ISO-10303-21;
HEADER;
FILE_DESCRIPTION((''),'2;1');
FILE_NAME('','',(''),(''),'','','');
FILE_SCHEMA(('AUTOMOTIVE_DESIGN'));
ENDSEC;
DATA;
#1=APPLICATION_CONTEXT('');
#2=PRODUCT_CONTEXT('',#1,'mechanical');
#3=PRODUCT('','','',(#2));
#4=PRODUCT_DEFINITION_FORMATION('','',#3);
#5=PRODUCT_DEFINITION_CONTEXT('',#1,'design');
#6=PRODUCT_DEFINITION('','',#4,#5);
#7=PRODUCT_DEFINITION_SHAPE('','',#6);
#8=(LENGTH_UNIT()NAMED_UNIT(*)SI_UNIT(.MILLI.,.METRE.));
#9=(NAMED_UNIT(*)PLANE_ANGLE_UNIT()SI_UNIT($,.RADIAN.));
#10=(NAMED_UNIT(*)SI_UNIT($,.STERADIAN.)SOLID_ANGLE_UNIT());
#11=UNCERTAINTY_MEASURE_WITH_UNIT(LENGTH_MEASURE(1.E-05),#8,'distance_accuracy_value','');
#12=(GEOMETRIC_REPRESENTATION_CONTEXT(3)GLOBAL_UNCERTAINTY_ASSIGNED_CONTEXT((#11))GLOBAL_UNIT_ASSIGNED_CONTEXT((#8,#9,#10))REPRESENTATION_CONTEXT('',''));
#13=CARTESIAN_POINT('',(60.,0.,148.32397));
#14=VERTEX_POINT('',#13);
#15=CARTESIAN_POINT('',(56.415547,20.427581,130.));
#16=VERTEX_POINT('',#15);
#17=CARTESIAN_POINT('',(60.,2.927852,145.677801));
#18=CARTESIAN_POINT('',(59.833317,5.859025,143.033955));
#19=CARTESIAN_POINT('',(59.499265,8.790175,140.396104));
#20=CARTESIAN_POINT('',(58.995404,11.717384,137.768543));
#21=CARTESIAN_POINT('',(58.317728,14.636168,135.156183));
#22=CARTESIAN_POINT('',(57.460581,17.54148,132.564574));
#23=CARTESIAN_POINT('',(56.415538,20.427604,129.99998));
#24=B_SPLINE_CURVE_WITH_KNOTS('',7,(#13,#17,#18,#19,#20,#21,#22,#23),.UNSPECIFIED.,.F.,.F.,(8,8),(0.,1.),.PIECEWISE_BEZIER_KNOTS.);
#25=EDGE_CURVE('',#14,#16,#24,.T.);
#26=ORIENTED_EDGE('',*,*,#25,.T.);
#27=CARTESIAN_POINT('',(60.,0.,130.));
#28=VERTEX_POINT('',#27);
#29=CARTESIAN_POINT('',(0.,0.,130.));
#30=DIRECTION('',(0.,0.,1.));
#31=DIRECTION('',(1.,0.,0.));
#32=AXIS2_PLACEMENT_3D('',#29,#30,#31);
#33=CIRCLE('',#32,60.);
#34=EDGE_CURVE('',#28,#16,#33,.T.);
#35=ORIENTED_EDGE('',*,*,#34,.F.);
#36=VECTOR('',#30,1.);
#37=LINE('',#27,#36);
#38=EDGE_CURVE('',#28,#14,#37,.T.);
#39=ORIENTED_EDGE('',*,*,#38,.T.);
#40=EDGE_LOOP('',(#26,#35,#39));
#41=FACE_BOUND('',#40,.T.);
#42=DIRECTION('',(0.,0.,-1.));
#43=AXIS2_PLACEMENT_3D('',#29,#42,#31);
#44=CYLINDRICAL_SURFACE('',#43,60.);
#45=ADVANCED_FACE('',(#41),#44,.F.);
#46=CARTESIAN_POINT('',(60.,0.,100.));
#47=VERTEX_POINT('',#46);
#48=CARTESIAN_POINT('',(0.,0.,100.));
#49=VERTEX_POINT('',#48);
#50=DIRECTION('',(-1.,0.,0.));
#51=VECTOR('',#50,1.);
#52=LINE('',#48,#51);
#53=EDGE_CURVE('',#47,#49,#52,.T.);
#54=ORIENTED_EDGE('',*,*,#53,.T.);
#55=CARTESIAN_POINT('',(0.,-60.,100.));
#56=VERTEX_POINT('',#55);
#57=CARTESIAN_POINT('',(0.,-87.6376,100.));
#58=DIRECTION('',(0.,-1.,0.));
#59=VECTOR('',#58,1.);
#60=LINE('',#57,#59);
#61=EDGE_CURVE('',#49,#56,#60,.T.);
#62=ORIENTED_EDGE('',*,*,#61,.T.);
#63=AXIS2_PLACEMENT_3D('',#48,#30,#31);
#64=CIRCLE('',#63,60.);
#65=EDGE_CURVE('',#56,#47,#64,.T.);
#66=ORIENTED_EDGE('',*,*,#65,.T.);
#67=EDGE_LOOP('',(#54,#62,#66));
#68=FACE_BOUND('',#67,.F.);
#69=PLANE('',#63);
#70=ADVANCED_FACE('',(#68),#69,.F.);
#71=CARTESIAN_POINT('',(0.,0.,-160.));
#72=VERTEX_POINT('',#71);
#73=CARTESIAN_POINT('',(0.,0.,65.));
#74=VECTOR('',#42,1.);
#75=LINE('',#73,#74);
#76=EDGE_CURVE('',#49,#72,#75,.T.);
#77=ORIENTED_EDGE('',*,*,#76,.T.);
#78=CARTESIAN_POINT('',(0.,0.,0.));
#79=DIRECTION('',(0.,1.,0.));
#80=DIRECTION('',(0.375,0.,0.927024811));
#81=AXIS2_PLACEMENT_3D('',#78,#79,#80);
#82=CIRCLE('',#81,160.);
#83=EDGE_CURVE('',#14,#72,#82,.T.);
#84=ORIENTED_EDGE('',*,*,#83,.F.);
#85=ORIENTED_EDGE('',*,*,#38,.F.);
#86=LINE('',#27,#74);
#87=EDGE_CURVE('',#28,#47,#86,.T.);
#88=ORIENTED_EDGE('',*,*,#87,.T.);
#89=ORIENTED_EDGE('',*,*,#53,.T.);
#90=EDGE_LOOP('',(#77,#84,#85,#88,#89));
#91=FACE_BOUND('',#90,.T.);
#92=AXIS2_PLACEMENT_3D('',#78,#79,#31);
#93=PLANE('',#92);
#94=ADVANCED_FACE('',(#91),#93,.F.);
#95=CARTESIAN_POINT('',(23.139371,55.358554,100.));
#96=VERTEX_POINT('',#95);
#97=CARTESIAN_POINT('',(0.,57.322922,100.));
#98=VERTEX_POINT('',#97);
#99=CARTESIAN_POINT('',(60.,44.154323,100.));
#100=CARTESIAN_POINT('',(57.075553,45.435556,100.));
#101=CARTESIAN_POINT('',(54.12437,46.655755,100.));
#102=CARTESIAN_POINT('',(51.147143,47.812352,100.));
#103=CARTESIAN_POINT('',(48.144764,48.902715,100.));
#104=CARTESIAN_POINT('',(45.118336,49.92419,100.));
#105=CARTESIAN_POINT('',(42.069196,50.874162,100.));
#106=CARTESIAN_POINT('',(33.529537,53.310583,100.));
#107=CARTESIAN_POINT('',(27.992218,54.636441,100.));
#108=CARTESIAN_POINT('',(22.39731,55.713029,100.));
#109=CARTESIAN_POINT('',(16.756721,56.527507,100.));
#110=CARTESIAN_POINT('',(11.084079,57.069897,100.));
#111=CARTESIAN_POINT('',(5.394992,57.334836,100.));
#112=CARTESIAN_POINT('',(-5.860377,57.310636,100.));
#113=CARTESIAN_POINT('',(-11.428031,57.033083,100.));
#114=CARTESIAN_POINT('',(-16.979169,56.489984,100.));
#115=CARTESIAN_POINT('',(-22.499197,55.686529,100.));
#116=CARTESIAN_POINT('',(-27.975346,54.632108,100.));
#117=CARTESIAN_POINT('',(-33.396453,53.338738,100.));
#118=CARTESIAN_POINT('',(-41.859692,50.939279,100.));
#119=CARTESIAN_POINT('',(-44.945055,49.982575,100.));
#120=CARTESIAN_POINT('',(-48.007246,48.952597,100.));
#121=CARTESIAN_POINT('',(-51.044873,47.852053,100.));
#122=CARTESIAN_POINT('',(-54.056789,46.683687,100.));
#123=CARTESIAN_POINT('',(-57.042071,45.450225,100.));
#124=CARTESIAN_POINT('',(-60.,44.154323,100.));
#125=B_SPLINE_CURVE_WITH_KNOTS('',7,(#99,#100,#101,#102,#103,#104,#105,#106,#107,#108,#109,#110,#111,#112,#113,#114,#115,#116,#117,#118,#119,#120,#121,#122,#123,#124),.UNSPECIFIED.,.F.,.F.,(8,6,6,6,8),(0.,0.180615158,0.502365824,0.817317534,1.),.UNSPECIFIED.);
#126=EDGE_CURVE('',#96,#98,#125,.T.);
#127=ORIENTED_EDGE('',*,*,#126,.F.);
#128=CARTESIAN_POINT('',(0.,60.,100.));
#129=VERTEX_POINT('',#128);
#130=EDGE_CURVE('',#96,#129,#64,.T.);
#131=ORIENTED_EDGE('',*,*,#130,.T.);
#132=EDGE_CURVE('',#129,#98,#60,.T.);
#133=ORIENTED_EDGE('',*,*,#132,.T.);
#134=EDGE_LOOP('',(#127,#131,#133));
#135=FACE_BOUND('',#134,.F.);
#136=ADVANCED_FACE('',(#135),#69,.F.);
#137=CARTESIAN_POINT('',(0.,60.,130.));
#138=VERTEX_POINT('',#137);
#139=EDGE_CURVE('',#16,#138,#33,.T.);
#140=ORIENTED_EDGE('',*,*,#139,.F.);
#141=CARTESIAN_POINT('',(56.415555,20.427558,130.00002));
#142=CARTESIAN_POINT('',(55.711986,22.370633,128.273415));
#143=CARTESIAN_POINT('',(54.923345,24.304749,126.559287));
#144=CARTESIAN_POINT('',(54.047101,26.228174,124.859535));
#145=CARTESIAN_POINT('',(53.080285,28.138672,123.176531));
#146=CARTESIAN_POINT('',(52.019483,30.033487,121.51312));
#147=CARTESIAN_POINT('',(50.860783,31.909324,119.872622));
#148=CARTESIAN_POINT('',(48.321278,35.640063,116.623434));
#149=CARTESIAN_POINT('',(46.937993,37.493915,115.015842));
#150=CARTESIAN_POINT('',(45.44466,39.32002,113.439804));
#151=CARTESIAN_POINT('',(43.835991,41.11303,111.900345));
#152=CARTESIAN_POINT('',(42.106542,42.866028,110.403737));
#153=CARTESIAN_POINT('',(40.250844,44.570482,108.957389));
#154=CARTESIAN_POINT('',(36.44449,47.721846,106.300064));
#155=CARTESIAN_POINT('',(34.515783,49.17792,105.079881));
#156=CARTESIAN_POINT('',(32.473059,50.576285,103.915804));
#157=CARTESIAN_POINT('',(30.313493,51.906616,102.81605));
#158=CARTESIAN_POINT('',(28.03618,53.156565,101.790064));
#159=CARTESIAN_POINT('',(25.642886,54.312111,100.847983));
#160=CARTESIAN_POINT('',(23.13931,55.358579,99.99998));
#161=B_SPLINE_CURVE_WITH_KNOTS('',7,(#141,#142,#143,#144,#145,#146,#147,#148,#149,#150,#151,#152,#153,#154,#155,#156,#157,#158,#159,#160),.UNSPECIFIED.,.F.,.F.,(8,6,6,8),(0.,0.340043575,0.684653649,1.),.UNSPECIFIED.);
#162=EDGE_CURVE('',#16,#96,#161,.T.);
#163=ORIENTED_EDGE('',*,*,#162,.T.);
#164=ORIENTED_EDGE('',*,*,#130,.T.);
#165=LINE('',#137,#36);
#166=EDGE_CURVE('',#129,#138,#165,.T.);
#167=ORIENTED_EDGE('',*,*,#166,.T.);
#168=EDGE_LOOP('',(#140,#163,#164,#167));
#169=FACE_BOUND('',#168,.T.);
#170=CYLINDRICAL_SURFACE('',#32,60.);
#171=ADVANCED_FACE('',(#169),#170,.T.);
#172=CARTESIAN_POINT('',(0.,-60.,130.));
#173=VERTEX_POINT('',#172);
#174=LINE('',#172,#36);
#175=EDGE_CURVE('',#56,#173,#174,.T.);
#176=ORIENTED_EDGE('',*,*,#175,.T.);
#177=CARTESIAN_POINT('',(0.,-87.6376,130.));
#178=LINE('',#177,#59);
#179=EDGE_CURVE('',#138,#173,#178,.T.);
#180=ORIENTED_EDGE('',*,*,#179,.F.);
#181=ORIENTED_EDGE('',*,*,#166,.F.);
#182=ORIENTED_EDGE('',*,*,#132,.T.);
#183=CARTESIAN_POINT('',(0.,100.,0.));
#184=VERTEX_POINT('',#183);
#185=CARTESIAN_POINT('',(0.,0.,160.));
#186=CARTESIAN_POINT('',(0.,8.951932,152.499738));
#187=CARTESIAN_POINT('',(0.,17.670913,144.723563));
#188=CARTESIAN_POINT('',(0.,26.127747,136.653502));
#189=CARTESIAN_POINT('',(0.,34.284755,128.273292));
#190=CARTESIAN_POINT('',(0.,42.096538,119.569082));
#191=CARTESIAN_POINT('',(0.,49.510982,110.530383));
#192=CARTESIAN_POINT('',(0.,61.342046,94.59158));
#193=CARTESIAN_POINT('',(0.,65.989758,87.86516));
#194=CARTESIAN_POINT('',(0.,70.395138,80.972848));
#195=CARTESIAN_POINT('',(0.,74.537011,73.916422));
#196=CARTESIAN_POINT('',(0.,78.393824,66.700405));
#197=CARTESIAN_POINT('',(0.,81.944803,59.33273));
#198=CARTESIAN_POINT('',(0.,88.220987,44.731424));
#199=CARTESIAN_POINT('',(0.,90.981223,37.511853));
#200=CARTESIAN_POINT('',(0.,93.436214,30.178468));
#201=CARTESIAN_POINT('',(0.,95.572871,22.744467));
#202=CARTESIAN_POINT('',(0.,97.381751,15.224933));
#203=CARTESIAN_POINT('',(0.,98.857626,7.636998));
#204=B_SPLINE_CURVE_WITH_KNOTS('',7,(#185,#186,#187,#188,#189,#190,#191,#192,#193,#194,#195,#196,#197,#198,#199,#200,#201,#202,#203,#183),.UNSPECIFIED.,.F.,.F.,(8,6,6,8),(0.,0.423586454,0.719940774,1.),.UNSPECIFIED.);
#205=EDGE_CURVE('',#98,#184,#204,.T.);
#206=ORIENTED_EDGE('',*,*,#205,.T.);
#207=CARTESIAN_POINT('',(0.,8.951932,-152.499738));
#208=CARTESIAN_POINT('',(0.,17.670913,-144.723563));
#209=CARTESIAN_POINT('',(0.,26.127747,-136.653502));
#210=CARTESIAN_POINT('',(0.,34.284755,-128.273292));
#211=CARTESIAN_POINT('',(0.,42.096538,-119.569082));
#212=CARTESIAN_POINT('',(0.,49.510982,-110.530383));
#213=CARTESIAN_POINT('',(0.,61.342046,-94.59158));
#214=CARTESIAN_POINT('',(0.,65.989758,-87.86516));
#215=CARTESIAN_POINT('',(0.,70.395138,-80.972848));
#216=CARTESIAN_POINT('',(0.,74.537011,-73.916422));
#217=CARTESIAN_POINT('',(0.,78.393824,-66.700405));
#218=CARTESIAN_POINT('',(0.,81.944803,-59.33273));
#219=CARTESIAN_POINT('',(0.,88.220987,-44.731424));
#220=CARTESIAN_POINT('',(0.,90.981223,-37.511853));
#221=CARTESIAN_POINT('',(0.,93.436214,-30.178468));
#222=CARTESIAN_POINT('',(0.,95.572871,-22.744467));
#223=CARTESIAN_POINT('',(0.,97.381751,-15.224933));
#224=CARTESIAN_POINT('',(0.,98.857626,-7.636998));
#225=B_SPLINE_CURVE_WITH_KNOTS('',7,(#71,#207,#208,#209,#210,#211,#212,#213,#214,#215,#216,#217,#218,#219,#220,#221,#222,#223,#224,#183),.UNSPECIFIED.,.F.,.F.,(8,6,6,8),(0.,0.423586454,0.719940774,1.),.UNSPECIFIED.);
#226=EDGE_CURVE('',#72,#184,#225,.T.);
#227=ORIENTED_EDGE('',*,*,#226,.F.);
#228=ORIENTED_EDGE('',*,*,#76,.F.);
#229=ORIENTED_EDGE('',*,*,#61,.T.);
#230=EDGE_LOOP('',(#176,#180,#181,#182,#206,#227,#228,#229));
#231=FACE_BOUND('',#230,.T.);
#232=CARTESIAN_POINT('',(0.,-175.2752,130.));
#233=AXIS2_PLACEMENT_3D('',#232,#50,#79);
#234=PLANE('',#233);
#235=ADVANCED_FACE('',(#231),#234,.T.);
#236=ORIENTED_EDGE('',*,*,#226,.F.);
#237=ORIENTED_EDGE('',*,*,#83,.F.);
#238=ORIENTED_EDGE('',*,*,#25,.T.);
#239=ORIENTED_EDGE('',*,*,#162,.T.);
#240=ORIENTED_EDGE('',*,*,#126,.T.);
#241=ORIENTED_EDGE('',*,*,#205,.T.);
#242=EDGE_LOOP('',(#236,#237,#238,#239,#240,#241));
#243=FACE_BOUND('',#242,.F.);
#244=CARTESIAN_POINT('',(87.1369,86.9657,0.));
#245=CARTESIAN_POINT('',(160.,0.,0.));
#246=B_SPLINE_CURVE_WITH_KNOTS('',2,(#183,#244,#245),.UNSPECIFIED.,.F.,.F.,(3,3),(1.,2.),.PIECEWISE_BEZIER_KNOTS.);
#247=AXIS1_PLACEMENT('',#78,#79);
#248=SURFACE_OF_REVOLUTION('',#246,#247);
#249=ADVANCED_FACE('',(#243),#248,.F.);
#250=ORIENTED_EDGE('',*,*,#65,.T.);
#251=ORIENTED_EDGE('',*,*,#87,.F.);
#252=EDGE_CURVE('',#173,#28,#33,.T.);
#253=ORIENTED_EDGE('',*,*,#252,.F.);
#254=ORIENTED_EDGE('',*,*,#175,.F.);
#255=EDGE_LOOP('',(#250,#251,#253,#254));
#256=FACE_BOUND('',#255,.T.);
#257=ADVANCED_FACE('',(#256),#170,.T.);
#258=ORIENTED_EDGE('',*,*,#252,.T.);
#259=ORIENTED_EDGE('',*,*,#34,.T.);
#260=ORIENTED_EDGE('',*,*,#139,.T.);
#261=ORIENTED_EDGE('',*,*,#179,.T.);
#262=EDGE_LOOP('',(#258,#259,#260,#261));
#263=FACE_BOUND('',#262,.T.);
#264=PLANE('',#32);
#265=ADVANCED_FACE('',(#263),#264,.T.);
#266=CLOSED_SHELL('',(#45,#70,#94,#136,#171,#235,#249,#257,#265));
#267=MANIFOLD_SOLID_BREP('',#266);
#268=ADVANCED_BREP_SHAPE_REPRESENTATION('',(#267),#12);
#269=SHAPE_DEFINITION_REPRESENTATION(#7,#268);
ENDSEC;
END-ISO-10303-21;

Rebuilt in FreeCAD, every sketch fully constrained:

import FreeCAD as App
import Part
import Sketcher

V = App.Vector


def add_polygon(sketch, points):
    """Adds a closed chain of lines whose ends are joined by coincident constraints."""
    first, n = sketch.GeometryCount, len(points)
    for a, b in zip(points, points[1:] + points[:1]):
        sketch.addGeometry(Part.LineSegment(App.Vector(*a, 0), App.Vector(*b, 0)), False)
    for i in range(n):
        sketch.addConstraint(Sketcher.Constraint("Coincident", first + i, 2, first + (i + 1) % n, 1))

doc = App.newDocument("Part")
body = doc.addObject("PartDesign::Body", "Body")

# Sketch on XY plane
sketch1 = body.newObject("Sketcher::SketchObject", "Sketch")
sketch1.AttachmentSupport = (doc.getObject("XY_Plane"), [""])
sketch1.MapMode = "FlatFace"
sketch1.addGeometry(Part.BSplineCurve([V(0, 100, 0), V(87.1369, 86.9657, 0), V(160, 0, 0)], [3, 3], [1, 2], False, 2, [1, 1, 1], False), False)
sketch1.addGeometry(Part.LineSegment(V(0, 100, 0), V(0, 0, 0)), False)
sketch1.addGeometry(Part.LineSegment(V(0, 0, 0), V(160, 0, 0)), False)
sketch1.addConstraint(Sketcher.Constraint("Block", 0))
sketch1.addConstraint(Sketcher.Constraint("Coincident", 0, 1, 1, 1))
sketch1.addConstraint(Sketcher.Constraint("Coincident", 1, 2, 2, 1))
sketch1.addConstraint(Sketcher.Constraint("Coincident", 2, 2, 0, 2))
sketch1.addConstraint(Sketcher.Constraint("Vertical", 1))
sketch1.addConstraint(Sketcher.Constraint("Horizontal", 2))
revolution = body.newObject("PartDesign::Revolution", "Revolution")
revolution.Profile = sketch1
revolution.ReferenceAxis = (sketch1, ["V_Axis"])
revolution.Angle = 360

# Sketch on XY plane
sketch2 = body.newObject("Sketcher::SketchObject", "Sketch001")
sketch2.AttachmentSupport = (doc.getObject("XY_Plane"), [""])
sketch2.MapMode = "FlatFace"
sketch2.AttachmentOffset = App.Placement(V(0, 0, 130), App.Rotation())
sketch2.addGeometry(Part.Circle(V(0, 0, 0), V(0, 0, 1), 60), False)
sketch2.addConstraint(Sketcher.Constraint("Coincident", 0, 3, -1, 1))
sketch2.addConstraint(Sketcher.Constraint("Diameter", 0, 120.0))
pad1 = body.newObject("PartDesign::Pad", "Pad")
pad1.Profile = sketch2
pad1.Length = 30
pad1.Reversed = True

# Sketch on XY plane
sketch3 = body.newObject("Sketcher::SketchObject", "Sketch002")
sketch3.AttachmentSupport = (doc.getObject("XY_Plane"), [""])
sketch3.MapMode = "FlatFace"
sketch3.AttachmentOffset = App.Placement(V(0, 0, 130), App.Rotation())
sketch3.addGeometry(Part.Circle(V(0, 0, 0), V(0, 0, 1), 60), False)
sketch3.addConstraint(Sketcher.Constraint("Coincident", 0, 3, -1, 1))
sketch3.addConstraint(Sketcher.Constraint("Diameter", 0, 120.0))
pocket1 = body.newObject("PartDesign::Pocket", "Pocket")
pocket1.Profile = sketch3
pocket1.Length = 30
pocket1.Reversed = True

# Sketch on XY plane
sketch4 = body.newObject("Sketcher::SketchObject", "Sketch003")
sketch4.AttachmentSupport = (doc.getObject("XY_Plane"), [""])
sketch4.MapMode = "FlatFace"
sketch4.AttachmentOffset = App.Placement(V(0, 0, 130), App.Rotation())
add_polygon(sketch4, [(0, -175.2752), (0, 104.5893), (-176.6682, 104.5893), (-176.6682, -175.2752)])  # lines 0-3
sketch4.addConstraint(Sketcher.Constraint("Vertical", 0))
sketch4.addConstraint(Sketcher.Constraint("Horizontal", 1))
sketch4.addConstraint(Sketcher.Constraint("Vertical", 2))
sketch4.addConstraint(Sketcher.Constraint("Horizontal", 3))
sketch4.addConstraint(Sketcher.Constraint("PointOnObject", 0, 2, -2))
sketch4.addConstraint(Sketcher.Constraint("DistanceX", 1, 2, 1, 1, 176.6682))
sketch4.addConstraint(Sketcher.Constraint("DistanceY", 0, 1, 0, 2, 279.8645))
sketch4.addConstraint(Sketcher.Constraint("DistanceY", -1, 1, 0, 2, 104.5893))
pocket2 = body.newObject("PartDesign::Pocket", "Pocket001")
pocket2.Profile = sketch4
pocket2.Length = 800
pocket2.Midplane = True

doc.recompute()
